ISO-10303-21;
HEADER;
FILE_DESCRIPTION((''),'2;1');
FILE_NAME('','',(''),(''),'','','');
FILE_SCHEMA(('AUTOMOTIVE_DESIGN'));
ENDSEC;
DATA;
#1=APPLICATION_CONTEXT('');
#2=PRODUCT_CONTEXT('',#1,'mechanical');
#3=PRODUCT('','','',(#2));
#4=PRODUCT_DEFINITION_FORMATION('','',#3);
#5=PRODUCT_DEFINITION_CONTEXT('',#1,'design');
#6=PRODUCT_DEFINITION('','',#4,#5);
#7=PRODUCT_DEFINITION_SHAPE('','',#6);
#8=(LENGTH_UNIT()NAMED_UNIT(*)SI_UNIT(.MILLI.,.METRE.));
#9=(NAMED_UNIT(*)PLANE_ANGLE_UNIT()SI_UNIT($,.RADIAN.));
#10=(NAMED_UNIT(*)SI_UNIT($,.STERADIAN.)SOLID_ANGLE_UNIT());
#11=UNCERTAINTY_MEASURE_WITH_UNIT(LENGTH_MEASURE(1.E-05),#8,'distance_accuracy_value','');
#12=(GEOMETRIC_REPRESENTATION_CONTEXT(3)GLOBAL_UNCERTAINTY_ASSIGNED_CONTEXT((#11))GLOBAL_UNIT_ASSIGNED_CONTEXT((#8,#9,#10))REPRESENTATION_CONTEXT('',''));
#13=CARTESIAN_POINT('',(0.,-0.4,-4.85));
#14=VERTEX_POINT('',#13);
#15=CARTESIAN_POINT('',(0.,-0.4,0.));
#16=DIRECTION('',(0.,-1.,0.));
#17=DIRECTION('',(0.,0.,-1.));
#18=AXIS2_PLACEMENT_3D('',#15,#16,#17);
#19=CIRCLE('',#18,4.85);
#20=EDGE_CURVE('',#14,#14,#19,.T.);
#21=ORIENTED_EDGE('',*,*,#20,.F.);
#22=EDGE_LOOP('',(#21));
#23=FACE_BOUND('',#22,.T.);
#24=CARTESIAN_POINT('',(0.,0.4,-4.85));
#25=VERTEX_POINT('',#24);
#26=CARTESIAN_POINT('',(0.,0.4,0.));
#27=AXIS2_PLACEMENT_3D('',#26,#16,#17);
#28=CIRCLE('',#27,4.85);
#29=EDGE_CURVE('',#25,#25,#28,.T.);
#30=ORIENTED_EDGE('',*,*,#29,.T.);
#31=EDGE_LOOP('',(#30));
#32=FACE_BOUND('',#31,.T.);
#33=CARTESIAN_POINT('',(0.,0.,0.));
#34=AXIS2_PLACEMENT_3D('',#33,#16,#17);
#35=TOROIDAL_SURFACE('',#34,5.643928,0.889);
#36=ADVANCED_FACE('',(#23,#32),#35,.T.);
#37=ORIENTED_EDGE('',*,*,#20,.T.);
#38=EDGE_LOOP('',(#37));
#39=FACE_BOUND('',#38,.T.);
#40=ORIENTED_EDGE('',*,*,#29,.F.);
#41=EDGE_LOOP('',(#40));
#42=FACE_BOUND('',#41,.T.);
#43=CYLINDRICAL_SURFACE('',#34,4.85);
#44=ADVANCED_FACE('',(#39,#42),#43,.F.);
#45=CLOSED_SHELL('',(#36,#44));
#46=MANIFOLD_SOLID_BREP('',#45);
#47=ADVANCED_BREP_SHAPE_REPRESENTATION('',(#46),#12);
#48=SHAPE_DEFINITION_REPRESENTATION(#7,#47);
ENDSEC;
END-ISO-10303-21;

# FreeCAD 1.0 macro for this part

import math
import FreeCAD as App
import Part
import Sketcher

V = App.Vector

doc = App.newDocument("Part")
body = doc.addObject("PartDesign::Body", "Body")

# Sketch on XY plane
sketch1 = doc.addObject("Sketcher::SketchObject", "Sketch")
body.addObject(sketch1)
sketch1.AttachmentSupport = (doc.XY_Plane, [""])
sketch1.MapMode = "FlatFace"
sketch1.addGeometry(Part.LineSegment(V(-4.8, -0.4, 0), V(-4.8, 0.4, 0)), False)
sketch1.addGeometry(Part.ArcOfCircle(Part.Circle(V(-5.6, 0, 0), V(0, 0, 1), 0.9), math.radians(27), math.radians(333)), False)
sketch1.addConstraint(Sketcher.Constraint("Coincident", 0, 1, 1, 2))
sketch1.addConstraint(Sketcher.Constraint("Coincident", 1, 1, 0, 2))
sketch1.addConstraint(Sketcher.Constraint("Vertical", 0))
sketch1.addConstraint(Sketcher.Constraint("PointOnObject", 1, 3, -1))
sketch1.addConstraint(Sketcher.Constraint("DistanceY", 0, 1, 0, 2, 0.8))
sketch1.addConstraint(Sketcher.Constraint("Radius", 1, 0.889))
sketch1.addConstraint(Sketcher.Constraint("DistanceX", 0, 1, -1, 1, 4.85))
revolution = doc.addObject("PartDesign::Revolution", "Revolution")
body.addObject(revolution)
revolution.Profile = sketch1
revolution.ReferenceAxis = (sketch1, ["V_Axis"])
revolution.Angle = 360

doc.recompute()
